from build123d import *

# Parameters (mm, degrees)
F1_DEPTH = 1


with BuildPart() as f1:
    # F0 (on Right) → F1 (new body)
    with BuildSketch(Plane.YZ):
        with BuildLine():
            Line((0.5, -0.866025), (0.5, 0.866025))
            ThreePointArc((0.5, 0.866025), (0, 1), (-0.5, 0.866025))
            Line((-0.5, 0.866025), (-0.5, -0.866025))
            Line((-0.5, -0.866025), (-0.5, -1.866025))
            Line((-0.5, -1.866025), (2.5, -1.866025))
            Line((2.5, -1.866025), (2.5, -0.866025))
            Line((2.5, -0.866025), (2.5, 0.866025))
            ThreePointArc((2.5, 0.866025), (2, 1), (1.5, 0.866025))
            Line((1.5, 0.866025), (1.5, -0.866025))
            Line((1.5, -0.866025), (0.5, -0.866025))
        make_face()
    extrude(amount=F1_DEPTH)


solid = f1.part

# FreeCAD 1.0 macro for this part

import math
import FreeCAD as App
import Part
import Sketcher
from FreeCAD import Vector
Q = App.Units.Quantity

doc = App.newDocument("Part")
body = doc.addObject("PartDesign::Body", "Body")

sketch1 = body.newObject("Sketcher::SketchObject", "Sketch")
sketch1.AttachmentSupport = (doc.getObject("YZ_Plane"), [""])
sketch1.MapMode = "FlatFace"
sketch1.addGeometry([
    Part.LineSegment(Vector(0.5, -0.866025, 0), Vector(0.5, 0.866025, 0)),
    Part.ArcOfCircle(Part.Circle(Vector(0, 0.000003, 0), Vector(0, 0, 1), 0.999997), math.radians(59.999914), math.radians(120.000086)),
    Part.LineSegment(Vector(-0.5, 0.866025, 0), Vector(-0.5, -1.866025, 0)),
    Part.LineSegment(Vector(-0.5, -1.866025, 0), Vector(2.5, -1.866025, 0)),
    Part.LineSegment(Vector(2.5, -1.866025, 0), Vector(2.5, 0.866025, 0)),
    Part.ArcOfCircle(Part.Circle(Vector(2, 0.000003, 0), Vector(0, 0, 1), 0.999997), math.radians(59.999914), math.radians(120.000086)),
    Part.LineSegment(Vector(1.5, 0.866025, 0), Vector(1.5, -0.866025, 0)),
    Part.LineSegment(Vector(1.5, -0.866025, 0), Vector(0.5, -0.866025, 0)),
], False)
sketch1.addConstraint([
    Sketcher.Constraint("Coincident", 0, 2, 1, 1),
    Sketcher.Constraint("Coincident", 1, 2, 2, 1),
    Sketcher.Constraint("Coincident", 2, 2, 3, 1),
    Sketcher.Constraint("Coincident", 3, 2, 4, 1),
    Sketcher.Constraint("Coincident", 4, 2, 5, 1),
    Sketcher.Constraint("Coincident", 5, 2, 6, 1),
    Sketcher.Constraint("Coincident", 6, 2, 7, 1),
    Sketcher.Constraint("Coincident", 7, 2, 0, 1),
    Sketcher.Constraint("Vertical", 0),
    Sketcher.Constraint("Vertical", 2),
    Sketcher.Constraint("Horizontal", 3),
    Sketcher.Constraint("Vertical", 4),
    Sketcher.Constraint("Vertical", 6),
    Sketcher.Constraint("Horizontal", 7),
    Sketcher.Constraint("Coincident", 1, 3, -1, 1),
    Sketcher.Constraint("Equal", 1, 5),
    Sketcher.Constraint("Symmetric", 1, 2, 7, 2, -1, 1),
    Sketcher.Constraint("Horizontal", 1, 3, 5, 3),
    Sketcher.Constraint("Horizontal", 1, 2, 4, 2),
    Sketcher.Constraint("Horizontal", 4, 2, 5, 2),
    Sketcher.Constraint("DistanceX", 3, 1, 3, 2, Q("3 mm")),
    Sketcher.Constraint("DistanceX", 7, 2, 7, 1, Q("1 mm")),
    Sketcher.Constraint("DistanceY", 3, 2, 6, 2, Q("1 mm")),
    Sketcher.Constraint("Radius", 1, Q("0.999997 mm")),
])
pad1 = body.newObject("PartDesign::Pad", "Pad")
pad1.Profile = sketch1
pad1.Length = 1

doc.recompute()
